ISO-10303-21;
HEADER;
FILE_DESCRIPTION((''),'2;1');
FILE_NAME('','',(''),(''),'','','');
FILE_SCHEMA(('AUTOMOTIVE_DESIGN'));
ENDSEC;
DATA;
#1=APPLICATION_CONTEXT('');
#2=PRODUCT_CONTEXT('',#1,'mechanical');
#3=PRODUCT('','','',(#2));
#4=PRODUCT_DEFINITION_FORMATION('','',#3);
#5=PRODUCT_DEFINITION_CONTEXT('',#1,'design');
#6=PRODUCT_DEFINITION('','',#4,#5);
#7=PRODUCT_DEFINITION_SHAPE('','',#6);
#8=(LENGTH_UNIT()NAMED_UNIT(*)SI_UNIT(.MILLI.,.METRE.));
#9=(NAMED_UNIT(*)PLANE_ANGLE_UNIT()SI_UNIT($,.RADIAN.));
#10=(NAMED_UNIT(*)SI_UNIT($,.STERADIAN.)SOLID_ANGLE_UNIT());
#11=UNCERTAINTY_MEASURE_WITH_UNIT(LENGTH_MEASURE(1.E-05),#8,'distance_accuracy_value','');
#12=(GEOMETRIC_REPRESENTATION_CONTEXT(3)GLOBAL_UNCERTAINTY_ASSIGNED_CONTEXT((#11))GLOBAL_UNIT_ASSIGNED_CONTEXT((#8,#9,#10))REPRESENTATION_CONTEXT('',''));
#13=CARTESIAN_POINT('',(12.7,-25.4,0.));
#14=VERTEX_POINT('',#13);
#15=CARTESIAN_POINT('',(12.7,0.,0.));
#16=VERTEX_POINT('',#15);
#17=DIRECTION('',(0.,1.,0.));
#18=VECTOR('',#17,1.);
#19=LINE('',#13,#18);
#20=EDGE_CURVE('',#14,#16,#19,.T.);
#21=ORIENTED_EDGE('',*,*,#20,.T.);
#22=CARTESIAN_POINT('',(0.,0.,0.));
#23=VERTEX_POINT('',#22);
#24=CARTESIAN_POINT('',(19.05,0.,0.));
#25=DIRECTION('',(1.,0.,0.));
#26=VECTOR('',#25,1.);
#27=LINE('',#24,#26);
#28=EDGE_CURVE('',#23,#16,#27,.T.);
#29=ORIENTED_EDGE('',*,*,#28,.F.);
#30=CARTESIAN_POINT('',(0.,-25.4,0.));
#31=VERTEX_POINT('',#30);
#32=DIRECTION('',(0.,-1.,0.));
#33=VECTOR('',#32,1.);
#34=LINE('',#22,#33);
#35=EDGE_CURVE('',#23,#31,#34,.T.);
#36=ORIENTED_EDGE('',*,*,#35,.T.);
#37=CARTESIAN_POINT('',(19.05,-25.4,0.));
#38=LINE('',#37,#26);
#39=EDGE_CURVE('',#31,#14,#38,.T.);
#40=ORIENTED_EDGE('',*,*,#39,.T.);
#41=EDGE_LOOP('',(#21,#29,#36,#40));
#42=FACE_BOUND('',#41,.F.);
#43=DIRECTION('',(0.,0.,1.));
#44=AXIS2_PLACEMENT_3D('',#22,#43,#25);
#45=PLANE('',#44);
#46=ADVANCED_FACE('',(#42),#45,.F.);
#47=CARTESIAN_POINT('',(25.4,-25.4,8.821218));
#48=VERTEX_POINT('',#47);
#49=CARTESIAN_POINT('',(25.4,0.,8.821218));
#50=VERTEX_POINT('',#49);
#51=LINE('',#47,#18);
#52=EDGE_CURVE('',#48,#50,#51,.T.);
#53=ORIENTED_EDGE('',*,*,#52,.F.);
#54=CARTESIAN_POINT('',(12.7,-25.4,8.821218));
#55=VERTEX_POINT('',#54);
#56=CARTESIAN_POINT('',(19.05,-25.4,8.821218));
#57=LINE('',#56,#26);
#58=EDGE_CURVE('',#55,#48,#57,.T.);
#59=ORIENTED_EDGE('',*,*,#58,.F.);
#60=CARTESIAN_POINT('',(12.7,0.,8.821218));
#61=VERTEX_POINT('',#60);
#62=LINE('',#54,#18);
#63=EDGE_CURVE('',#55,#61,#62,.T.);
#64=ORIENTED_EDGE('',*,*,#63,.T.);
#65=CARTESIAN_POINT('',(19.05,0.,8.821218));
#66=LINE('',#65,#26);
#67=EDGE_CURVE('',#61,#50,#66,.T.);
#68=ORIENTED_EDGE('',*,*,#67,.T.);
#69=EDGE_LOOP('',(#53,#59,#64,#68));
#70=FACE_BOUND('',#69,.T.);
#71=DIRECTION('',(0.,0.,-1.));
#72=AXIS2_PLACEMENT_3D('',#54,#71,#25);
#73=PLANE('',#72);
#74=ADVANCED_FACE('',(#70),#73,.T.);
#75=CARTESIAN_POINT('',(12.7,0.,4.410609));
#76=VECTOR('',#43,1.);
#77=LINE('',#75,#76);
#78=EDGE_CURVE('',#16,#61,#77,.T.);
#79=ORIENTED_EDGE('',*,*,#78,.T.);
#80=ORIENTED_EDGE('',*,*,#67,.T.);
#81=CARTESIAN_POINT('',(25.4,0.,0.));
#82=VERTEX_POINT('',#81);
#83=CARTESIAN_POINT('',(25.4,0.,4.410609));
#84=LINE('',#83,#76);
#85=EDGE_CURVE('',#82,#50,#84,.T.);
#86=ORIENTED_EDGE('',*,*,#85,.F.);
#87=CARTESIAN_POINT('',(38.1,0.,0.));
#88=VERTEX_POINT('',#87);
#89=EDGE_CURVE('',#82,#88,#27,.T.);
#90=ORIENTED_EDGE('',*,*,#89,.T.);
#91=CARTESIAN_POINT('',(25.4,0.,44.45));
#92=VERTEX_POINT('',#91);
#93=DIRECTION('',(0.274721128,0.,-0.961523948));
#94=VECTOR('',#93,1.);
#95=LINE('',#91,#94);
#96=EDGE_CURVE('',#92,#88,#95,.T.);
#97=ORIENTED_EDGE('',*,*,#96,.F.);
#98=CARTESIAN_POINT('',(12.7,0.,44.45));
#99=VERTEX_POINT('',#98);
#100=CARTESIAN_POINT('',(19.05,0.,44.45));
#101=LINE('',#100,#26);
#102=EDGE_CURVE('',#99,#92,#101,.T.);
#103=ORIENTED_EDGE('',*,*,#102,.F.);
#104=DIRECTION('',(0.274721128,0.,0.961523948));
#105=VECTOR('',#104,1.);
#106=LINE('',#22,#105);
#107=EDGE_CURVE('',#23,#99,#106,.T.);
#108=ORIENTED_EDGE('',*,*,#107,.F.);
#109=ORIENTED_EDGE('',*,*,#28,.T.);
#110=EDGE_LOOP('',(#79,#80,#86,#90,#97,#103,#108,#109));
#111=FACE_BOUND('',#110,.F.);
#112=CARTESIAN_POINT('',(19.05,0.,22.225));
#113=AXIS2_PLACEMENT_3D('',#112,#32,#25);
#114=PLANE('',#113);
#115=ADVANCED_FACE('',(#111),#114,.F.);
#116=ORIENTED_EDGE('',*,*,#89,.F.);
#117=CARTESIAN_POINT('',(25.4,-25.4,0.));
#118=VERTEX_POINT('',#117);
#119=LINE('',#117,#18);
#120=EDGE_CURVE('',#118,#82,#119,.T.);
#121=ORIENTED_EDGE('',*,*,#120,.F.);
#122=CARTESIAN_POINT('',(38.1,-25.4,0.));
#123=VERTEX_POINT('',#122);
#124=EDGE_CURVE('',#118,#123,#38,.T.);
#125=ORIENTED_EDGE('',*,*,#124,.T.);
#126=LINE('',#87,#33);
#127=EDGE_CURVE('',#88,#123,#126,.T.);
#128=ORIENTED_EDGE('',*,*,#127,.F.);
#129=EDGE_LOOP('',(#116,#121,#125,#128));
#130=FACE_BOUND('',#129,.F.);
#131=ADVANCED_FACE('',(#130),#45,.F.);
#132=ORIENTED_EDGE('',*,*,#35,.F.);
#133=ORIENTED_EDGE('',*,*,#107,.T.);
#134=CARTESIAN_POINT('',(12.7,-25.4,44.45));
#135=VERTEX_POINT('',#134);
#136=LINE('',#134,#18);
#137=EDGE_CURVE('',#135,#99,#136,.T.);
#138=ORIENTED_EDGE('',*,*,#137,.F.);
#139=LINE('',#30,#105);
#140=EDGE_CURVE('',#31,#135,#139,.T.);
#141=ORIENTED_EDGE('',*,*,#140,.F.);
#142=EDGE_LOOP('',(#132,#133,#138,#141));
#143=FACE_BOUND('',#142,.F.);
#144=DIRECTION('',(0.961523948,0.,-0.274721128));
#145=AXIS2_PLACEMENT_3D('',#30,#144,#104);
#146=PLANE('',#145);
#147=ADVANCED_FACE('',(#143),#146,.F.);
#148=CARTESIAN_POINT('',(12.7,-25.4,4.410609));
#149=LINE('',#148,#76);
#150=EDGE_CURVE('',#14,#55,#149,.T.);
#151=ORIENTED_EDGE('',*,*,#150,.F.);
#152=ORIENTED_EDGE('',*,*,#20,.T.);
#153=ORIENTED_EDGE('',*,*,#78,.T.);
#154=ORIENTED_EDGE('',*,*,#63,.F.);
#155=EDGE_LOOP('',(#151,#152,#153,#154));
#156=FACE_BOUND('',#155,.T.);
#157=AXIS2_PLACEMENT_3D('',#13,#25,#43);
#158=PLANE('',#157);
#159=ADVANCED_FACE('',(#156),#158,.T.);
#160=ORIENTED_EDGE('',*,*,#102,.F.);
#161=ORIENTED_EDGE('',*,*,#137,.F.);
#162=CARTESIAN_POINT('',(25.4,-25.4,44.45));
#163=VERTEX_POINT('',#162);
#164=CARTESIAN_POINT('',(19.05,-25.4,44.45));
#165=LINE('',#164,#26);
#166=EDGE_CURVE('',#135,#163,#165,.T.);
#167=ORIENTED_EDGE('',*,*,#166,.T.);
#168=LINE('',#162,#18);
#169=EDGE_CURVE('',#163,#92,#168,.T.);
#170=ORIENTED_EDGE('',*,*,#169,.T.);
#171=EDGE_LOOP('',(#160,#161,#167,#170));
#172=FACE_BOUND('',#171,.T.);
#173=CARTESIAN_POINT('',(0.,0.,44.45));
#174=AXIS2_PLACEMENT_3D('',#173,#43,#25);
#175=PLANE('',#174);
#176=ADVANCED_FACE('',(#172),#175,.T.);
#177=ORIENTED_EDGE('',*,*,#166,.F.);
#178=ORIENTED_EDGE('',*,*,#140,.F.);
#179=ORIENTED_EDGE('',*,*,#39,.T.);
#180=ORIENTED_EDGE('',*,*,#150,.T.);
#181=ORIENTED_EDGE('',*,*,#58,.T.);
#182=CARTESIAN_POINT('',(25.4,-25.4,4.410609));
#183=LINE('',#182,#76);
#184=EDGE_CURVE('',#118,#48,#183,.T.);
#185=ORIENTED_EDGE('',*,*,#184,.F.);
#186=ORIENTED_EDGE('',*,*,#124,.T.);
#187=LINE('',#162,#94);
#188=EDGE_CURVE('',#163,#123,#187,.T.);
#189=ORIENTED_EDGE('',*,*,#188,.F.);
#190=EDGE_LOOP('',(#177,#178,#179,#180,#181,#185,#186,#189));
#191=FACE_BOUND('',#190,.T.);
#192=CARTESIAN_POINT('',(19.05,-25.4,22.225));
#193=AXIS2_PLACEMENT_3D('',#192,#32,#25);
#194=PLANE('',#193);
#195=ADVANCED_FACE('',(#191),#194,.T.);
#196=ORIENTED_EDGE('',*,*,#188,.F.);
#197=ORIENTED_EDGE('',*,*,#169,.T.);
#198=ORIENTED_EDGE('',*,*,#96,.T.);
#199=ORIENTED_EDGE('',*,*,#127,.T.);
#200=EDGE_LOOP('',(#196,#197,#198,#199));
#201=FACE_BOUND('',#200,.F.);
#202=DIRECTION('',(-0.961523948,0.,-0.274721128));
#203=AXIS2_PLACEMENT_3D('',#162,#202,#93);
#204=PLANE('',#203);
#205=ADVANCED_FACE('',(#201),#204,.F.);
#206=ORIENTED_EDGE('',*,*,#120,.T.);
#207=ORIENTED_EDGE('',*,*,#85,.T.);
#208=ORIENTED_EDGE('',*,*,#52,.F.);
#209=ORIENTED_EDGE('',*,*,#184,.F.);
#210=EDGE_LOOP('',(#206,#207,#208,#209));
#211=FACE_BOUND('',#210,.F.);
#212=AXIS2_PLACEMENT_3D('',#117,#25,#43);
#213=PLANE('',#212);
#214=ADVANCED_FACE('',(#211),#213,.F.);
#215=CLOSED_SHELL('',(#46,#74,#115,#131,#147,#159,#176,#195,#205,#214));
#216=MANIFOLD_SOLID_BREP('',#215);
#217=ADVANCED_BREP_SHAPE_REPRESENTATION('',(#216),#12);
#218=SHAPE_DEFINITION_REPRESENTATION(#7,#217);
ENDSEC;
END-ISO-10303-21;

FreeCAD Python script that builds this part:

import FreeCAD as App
import Part
import Sketcher

V = App.Vector
Q = App.Units.Quantity


def add_polygon(sketch, points):
    """Adds a closed chain of lines whose ends are joined by coincident constraints."""
    first, n = sketch.GeometryCount, len(points)
    for a, b in zip(points, points[1:] + points[:1]):
        sketch.addGeometry(Part.LineSegment(App.Vector(*a, 0), App.Vector(*b, 0)), False)
    for i in range(n):
        sketch.addConstraint(Sketcher.Constraint("Coincident", first + i, 2, first + (i + 1) % n, 1))

doc = App.newDocument("Part")
body = doc.addObject("PartDesign::Body", "Body")

# Sketch on XZ plane
sketch1 = body.newObject("Sketcher::SketchObject", "Sketch")
sketch1.AttachmentSupport = (doc.getObject("XZ_Plane"), [""])
sketch1.MapMode = "FlatFace"
add_polygon(sketch1, [(0, 44), (0, 0), (38, 0), (38, 44)])  # lines 0-3
sketch1.addConstraint(Sketcher.Constraint("Vertical", 0))
sketch1.addConstraint(Sketcher.Constraint("Horizontal", 1))
sketch1.addConstraint(Sketcher.Constraint("Vertical", 2))
sketch1.addConstraint(Sketcher.Constraint("Horizontal", 3))
sketch1.addConstraint(Sketcher.Constraint("Coincident", 0, 2, -1, 1))
sketch1.addConstraint(Sketcher.Constraint("DistanceX", 1, 1, 1, 2, Q("1.5 in")))
sketch1.addConstraint(Sketcher.Constraint("DistanceY", 0, 2, 0, 1, Q("1.75 in")))
pad1 = body.newObject("PartDesign::Pad", "Pad")
pad1.Profile = sketch1
pad1.Length = Q("1 in")

# Sketch on XZ plane
sketch2 = body.newObject("Sketcher::SketchObject", "Sketch001")
sketch2.AttachmentSupport = (doc.getObject("XZ_Plane"), [""])
sketch2.MapMode = "FlatFace"
sketch2.AttachmentOffset = App.Placement(V(0, 0, 1 * 25.4), App.Rotation())
add_polygon(sketch2, [(13, 9), (13, 0), (25, 0), (25, 9)])  # lines 0-3
add_polygon(sketch2, [(0, 44), (0, 0), (13, 44)])  # lines 4-6
add_polygon(sketch2, [(38, 44), (25, 44), (38, 0)])  # lines 7-9
sketch2.addConstraint(Sketcher.Constraint("Vertical", 0))
sketch2.addConstraint(Sketcher.Constraint("Horizontal", 1))
sketch2.addConstraint(Sketcher.Constraint("Vertical", 2))
sketch2.addConstraint(Sketcher.Constraint("Horizontal", 3))
sketch2.addConstraint(Sketcher.Constraint("Vertical", 4))
sketch2.addConstraint(Sketcher.Constraint("Horizontal", 6))
sketch2.addConstraint(Sketcher.Constraint("Horizontal", 7))
sketch2.addConstraint(Sketcher.Constraint("Vertical", 9))
sketch2.addConstraint(Sketcher.Constraint("Coincident", 4, 2, -1, 1))
sketch2.addConstraint(Sketcher.Constraint("PointOnObject", 0, 2, -1))
sketch2.addConstraint(Sketcher.Constraint("PointOnObject", 8, 2, -1))
sketch2.addConstraint(Sketcher.Constraint("Horizontal", 6, 2, 7, 2))
sketch2.addConstraint(Sketcher.Constraint("Vertical", 3, 2, 5, 2))
sketch2.addConstraint(Sketcher.Constraint("Vertical", 2, 2, 7, 2))
sketch2.addConstraint(Sketcher.Constraint("Equal", 3, 6))
sketch2.addConstraint(Sketcher.Constraint("Equal", 6, 7))
sketch2.addConstraint(Sketcher.Constraint("DistanceX", 1, 1, 1, 2, Q("0.5 in")))
sketch2.addConstraint(Sketcher.Constraint("DistanceY", 4, 2, 4, 1, Q("1.75 in")))
sketch2.addConstraint(Sketcher.Constraint("DistanceY", 0, 2, 0, 1, 8.821218))
pocket1 = body.newObject("PartDesign::Pocket", "Pocket")
pocket1.Profile = sketch2
pocket1.Length = Q("1 in")

doc.recompute()
